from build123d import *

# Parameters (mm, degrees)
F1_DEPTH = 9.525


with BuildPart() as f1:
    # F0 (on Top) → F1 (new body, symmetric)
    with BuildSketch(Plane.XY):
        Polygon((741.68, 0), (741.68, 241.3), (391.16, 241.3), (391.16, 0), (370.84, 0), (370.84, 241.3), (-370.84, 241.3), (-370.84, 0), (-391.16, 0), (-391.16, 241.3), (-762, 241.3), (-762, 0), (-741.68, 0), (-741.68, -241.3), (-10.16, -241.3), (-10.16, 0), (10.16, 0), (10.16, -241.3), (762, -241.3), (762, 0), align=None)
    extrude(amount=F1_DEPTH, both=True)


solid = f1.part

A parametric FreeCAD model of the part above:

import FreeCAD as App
import Part
import Sketcher
Q = App.Units.Quantity

doc = App.newDocument("Part")
body = doc.addObject("PartDesign::Body", "Body")

# Sketch on XY plane
sketch1 = doc.addObject("Sketcher::SketchObject", "Sketch")
body.addObject(sketch1)
sketch1.AttachmentSupport = (doc.XY_Plane, [""])
sketch1.MapMode = "FlatFace"
sketch1.addGeometry(Part.LineSegment(App.Vector(742, 0, 0), App.Vector(742, 241, 0)), False)
sketch1.addGeometry(Part.LineSegment(App.Vector(742, 241, 0), App.Vector(391, 241, 0)), False)
sketch1.addGeometry(Part.LineSegment(App.Vector(391, 241, 0), App.Vector(391, 0, 0)), False)
sketch1.addGeometry(Part.LineSegment(App.Vector(391, 0, 0), App.Vector(371, 0, 0)), False)
sketch1.addGeometry(Part.LineSegment(App.Vector(371, 0, 0), App.Vector(371, 241, 0)), False)
sketch1.addGeometry(Part.LineSegment(App.Vector(371, 241, 0), App.Vector(-371, 241, 0)), False)
sketch1.addGeometry(Part.LineSegment(App.Vector(-371, 241, 0), App.Vector(-371, 0, 0)), False)
sketch1.addGeometry(Part.LineSegment(App.Vector(-371, 0, 0), App.Vector(-391, 0, 0)), False)
sketch1.addGeometry(Part.LineSegment(App.Vector(-391, 0, 0), App.Vector(-391, 241, 0)), False)
sketch1.addGeometry(Part.LineSegment(App.Vector(-391, 241, 0), App.Vector(-762, 241, 0)), False)
sketch1.addGeometry(Part.LineSegment(App.Vector(-762, 241, 0), App.Vector(-762, 0, 0)), False)
sketch1.addGeometry(Part.LineSegment(App.Vector(-762, 0, 0), App.Vector(-742, 0, 0)), False)
sketch1.addGeometry(Part.LineSegment(App.Vector(-742, 0, 0), App.Vector(-742, -241, 0)), False)
sketch1.addGeometry(Part.LineSegment(App.Vector(-742, -241, 0), App.Vector(-10, -241, 0)), False)
sketch1.addGeometry(Part.LineSegment(App.Vector(-10, -241, 0), App.Vector(-10, 0, 0)), False)
sketch1.addGeometry(Part.LineSegment(App.Vector(-10, 0, 0), App.Vector(10, 0, 0)), False)
sketch1.addGeometry(Part.LineSegment(App.Vector(10, 0, 0), App.Vector(10, -241, 0)), False)
sketch1.addGeometry(Part.LineSegment(App.Vector(10, -241, 0), App.Vector(762, -241, 0)), False)
sketch1.addGeometry(Part.LineSegment(App.Vector(762, -241, 0), App.Vector(762, 0, 0)), False)
sketch1.addGeometry(Part.LineSegment(App.Vector(762, 0, 0), App.Vector(742, 0, 0)), False)
sketch1.addConstraint(Sketcher.Constraint("Coincident", 0, 2, 1, 1))
sketch1.addConstraint(Sketcher.Constraint("Coincident", 1, 2, 2, 1))
sketch1.addConstraint(Sketcher.Constraint("Coincident", 2, 2, 3, 1))
sketch1.addConstraint(Sketcher.Constraint("Coincident", 3, 2, 4, 1))
sketch1.addConstraint(Sketcher.Constraint("Coincident", 4, 2, 5, 1))
sketch1.addConstraint(Sketcher.Constraint("Coincident", 5, 2, 6, 1))
sketch1.addConstraint(Sketcher.Constraint("Coincident", 6, 2, 7, 1))
sketch1.addConstraint(Sketcher.Constraint("Coincident", 7, 2, 8, 1))
sketch1.addConstraint(Sketcher.Constraint("Coincident", 8, 2, 9, 1))
sketch1.addConstraint(Sketcher.Constraint("Coincident", 9, 2, 10, 1))
sketch1.addConstraint(Sketcher.Constraint("Coincident", 10, 2, 11, 1))
sketch1.addConstraint(Sketcher.Constraint("Coincident", 11, 2, 12, 1))
sketch1.addConstraint(Sketcher.Constraint("Coincident", 12, 2, 13, 1))
sketch1.addConstraint(Sketcher.Constraint("Coincident", 13, 2, 14, 1))
sketch1.addConstraint(Sketcher.Constraint("Coincident", 14, 2, 15, 1))
sketch1.addConstraint(Sketcher.Constraint("Coincident", 15, 2, 16, 1))
sketch1.addConstraint(Sketcher.Constraint("Coincident", 16, 2, 17, 1))
sketch1.addConstraint(Sketcher.Constraint("Coincident", 17, 2, 18, 1))
sketch1.addConstraint(Sketcher.Constraint("Coincident", 18, 2, 19, 1))
sketch1.addConstraint(Sketcher.Constraint("Coincident", 19, 2, 0, 1))
sketch1.addConstraint(Sketcher.Constraint("Vertical", 0))
sketch1.addConstraint(Sketcher.Constraint("Horizontal", 1))
sketch1.addConstraint(Sketcher.Constraint("Vertical", 2))
sketch1.addConstraint(Sketcher.Constraint("Horizontal", 3))
sketch1.addConstraint(Sketcher.Constraint("Vertical", 4))
sketch1.addConstraint(Sketcher.Constraint("Horizontal", 5))
sketch1.addConstraint(Sketcher.Constraint("Vertical", 6))
sketch1.addConstraint(Sketcher.Constraint("Horizontal", 7))
sketch1.addConstraint(Sketcher.Constraint("Vertical", 8))
sketch1.addConstraint(Sketcher.Constraint("Horizontal", 9))
sketch1.addConstraint(Sketcher.Constraint("Vertical", 10))
sketch1.addConstraint(Sketcher.Constraint("Horizontal", 11))
sketch1.addConstraint(Sketcher.Constraint("Vertical", 12))
sketch1.addConstraint(Sketcher.Constraint("Horizontal", 13))
sketch1.addConstraint(Sketcher.Constraint("Vertical", 14))
sketch1.addConstraint(Sketcher.Constraint("Horizontal", 15))
sketch1.addConstraint(Sketcher.Constraint("Vertical", 16))
sketch1.addConstraint(Sketcher.Constraint("Horizontal", 17))
sketch1.addConstraint(Sketcher.Constraint("Vertical", 18))
sketch1.addConstraint(Sketcher.Constraint("Horizontal", 19))
sketch1.addConstraint(Sketcher.Constraint("Symmetric", 3, 2, 6, 2, -1, 1))
sketch1.addConstraint(Sketcher.Constraint("Symmetric", 0, 2, 12, 2, -1, 1))
sketch1.addConstraint(Sketcher.Constraint("Symmetric", 14, 2, 15, 2, -1, 1))
sketch1.addConstraint(Sketcher.Constraint("Symmetric", 9, 2, 17, 2, -1, 1))
sketch1.addConstraint(Sketcher.Constraint("Symmetric", 2, 2, 7, 2, -2))
sketch1.addConstraint(Sketcher.Constraint("PointOnObject", 10, 2, -1))
sketch1.addConstraint(Sketcher.Constraint("PointOnObject", 18, 2, -1))
sketch1.addConstraint(Sketcher.Constraint("Horizontal", 1, 2, 4, 2))
sketch1.addConstraint(Sketcher.Constraint("Horizontal", 5, 2, 8, 2))
sketch1.addConstraint(Sketcher.Constraint("Equal", 7, 11))
sketch1.addConstraint(Sketcher.Constraint("Equal", 11, 15))
sketch1.addConstraint(Sketcher.Constraint("DistanceX", 1, 2, 1, 1, Q("13.8 in")))
sketch1.addConstraint(Sketcher.Constraint("DistanceX", 3, 2, 3, 1, Q("0.8 in")))
sketch1.addConstraint(Sketcher.Constraint("DistanceX", 5, 2, 5, 1, Q("29.2 in")))
sketch1.addConstraint(Sketcher.Constraint("DistanceY", 0, 1, 0, 2, Q("9.5 in")))
pad1 = doc.addObject("PartDesign::Pad", "Pad")
body.addObject(pad1)
pad1.Profile = sketch1
pad1.Length = Q("0.75 in")
pad1.Midplane = True

doc.recompute()
